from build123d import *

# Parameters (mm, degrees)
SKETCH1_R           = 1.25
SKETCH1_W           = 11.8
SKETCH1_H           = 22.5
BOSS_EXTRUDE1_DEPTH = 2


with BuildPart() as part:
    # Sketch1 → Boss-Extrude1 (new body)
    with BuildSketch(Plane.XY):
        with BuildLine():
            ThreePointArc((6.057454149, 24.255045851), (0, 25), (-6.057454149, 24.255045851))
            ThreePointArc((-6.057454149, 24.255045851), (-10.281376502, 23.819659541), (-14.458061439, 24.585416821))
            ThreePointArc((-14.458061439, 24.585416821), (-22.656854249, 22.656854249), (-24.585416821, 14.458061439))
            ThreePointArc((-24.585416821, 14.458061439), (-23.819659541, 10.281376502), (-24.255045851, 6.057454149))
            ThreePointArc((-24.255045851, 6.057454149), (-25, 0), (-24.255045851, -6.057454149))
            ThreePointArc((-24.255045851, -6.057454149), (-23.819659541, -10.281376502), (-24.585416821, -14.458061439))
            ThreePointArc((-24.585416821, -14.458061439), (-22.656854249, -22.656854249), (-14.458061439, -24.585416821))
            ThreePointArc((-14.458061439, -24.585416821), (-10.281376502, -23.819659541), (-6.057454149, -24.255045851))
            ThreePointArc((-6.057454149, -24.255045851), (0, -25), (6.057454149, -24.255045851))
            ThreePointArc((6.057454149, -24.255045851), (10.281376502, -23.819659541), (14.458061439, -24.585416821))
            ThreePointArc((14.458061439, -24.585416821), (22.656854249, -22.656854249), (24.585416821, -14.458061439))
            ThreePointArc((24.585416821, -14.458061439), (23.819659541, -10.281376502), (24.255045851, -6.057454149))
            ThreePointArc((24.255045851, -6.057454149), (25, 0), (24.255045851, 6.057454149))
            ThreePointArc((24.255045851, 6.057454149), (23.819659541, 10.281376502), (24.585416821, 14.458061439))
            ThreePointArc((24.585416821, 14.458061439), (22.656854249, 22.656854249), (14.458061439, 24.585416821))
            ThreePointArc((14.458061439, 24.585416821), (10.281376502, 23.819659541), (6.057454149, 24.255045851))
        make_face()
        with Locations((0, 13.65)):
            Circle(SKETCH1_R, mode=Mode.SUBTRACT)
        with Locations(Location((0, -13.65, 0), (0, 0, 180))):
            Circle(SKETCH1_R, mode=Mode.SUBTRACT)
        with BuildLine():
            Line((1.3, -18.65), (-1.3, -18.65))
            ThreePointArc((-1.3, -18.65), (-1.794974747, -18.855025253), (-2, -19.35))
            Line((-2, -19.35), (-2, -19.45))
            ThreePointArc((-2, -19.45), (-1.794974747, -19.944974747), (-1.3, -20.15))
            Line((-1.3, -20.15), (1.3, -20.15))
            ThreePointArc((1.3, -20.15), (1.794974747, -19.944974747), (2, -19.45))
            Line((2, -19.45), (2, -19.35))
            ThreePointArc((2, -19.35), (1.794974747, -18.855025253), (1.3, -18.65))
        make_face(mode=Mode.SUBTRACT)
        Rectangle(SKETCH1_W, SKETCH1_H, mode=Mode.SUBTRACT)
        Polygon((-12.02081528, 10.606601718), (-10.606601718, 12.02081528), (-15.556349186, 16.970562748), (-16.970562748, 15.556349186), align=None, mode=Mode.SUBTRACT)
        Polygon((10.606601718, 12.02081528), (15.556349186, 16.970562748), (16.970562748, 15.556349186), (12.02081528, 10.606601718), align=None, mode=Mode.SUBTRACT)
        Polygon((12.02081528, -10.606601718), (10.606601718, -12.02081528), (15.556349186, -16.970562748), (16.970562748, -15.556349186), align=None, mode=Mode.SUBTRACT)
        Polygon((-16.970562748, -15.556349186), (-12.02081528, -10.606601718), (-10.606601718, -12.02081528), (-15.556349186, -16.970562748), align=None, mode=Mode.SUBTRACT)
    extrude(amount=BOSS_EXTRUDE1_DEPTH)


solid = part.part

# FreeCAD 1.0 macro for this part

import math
import FreeCAD as App
import Part
import Sketcher
from FreeCAD import Vector
Q = App.Units.Quantity

doc = App.newDocument("Part")
body = doc.addObject("PartDesign::Body", "Body")

# Sketch on XY plane
sketch1 = body.newObject("Sketcher::SketchObject", "Sketch")
sketch1.AttachmentSupport = (doc.getObject("XY_Plane"), [""])
sketch1.MapMode = "FlatFace"
sketch1.addGeometry(Part.ArcOfCircle(Part.Circle(Vector(0, 0, 0), Vector(0, 0, 1), 25), math.radians(75.97778), math.radians(104.02222)), False)
sketch1.addGeometry(Part.ArcOfCircle(Part.Circle(Vector(-9.691927, 38.808073, 0), Vector(0, 0, 1), 15), math.radians(-108.526445), math.radians(-75.97778)), False)
sketch1.addGeometry(Part.ArcOfCircle(Part.Circle(Vector(-17, 17, 0), Vector(0, 0, 1), 8), math.radians(71.473555), math.radians(198.526445)), False)
sketch1.addGeometry(Part.ArcOfCircle(Part.Circle(Vector(-38.808073, 9.691927, 0), Vector(0, 0, 1), 15), math.radians(-14.02222), math.radians(18.526445)), False)
sketch1.addGeometry(Part.ArcOfCircle(Part.Circle(Vector(0, 0, 0), Vector(0, 0, 1), 25), math.radians(165.97778), math.radians(194.02222)), False)
sketch1.addGeometry(Part.ArcOfCircle(Part.Circle(Vector(-38.808073, -9.691927, 0), Vector(0, 0, 1), 15), math.radians(-18.526445), math.radians(14.02222)), False)
sketch1.addGeometry(Part.ArcOfCircle(Part.Circle(Vector(-17, -17, 0), Vector(0, 0, 1), 8), math.radians(161.473555), math.radians(288.526445)), False)
sketch1.addGeometry(Part.ArcOfCircle(Part.Circle(Vector(-9.691927, -38.808073, 0), Vector(0, 0, 1), 15), math.radians(75.97778), math.radians(108.526445)), False)
sketch1.addGeometry(Part.ArcOfCircle(Part.Circle(Vector(0, 0, 0), Vector(0, 0, 1), 25), math.radians(-104.02222), math.radians(-75.97778)), False)
sketch1.addGeometry(Part.ArcOfCircle(Part.Circle(Vector(9.691927, -38.808073, 0), Vector(0, 0, 1), 15), math.radians(71.473555), math.radians(104.02222)), False)
sketch1.addGeometry(Part.ArcOfCircle(Part.Circle(Vector(17, -17, 0), Vector(0, 0, 1), 8), math.radians(-108.526445), math.radians(18.526445)), False)
sketch1.addGeometry(Part.ArcOfCircle(Part.Circle(Vector(38.808073, -9.691927, 0), Vector(0, 0, 1), 15), math.radians(165.97778), math.radians(198.526445)), False)
sketch1.addGeometry(Part.ArcOfCircle(Part.Circle(Vector(0, 0, 0), Vector(0, 0, 1), 25), math.radians(-14.02222), math.radians(14.02222)), False)
sketch1.addGeometry(Part.ArcOfCircle(Part.Circle(Vector(38.808073, 9.691927, 0), Vector(0, 0, 1), 15), math.radians(161.473555), math.radians(194.02222)), False)
sketch1.addGeometry(Part.ArcOfCircle(Part.Circle(Vector(17, 17, 0), Vector(0, 0, 1), 8), math.radians(-18.526445), math.radians(108.526445)), False)
sketch1.addGeometry(Part.ArcOfCircle(Part.Circle(Vector(9.691927, 38.808073, 0), Vector(0, 0, 1), 15), math.radians(-104.02222), math.radians(-71.473555)), False)
sketch1.addGeometry(Part.LineSegment(Vector(-15.556349, -16.970563, 0), Vector(-16.970563, -15.556349, 0)), False)
sketch1.addGeometry(Part.LineSegment(Vector(-16.970563, -15.556349, 0), Vector(-12.020815, -10.606602, 0)), False)
sketch1.addGeometry(Part.LineSegment(Vector(-12.020815, -10.606602, 0), Vector(-10.606602, -12.020815, 0)), False)
sketch1.addGeometry(Part.LineSegment(Vector(-10.606602, -12.020815, 0), Vector(-15.556349, -16.970563, 0)), False)
sketch1.addGeometry(Part.LineSegment(Vector(-1.3, -18.65, 0), Vector(1.3, -18.65, 0)), False)
sketch1.addGeometry(Part.ArcOfCircle(Part.Circle(Vector(1.3, -19.35, 0), Vector(0, 0, 1), 0.7), math.radians(0), math.radians(90)), False)
sketch1.addGeometry(Part.LineSegment(Vector(2, -19.35, 0), Vector(2, -19.45, 0)), False)
sketch1.addGeometry(Part.ArcOfCircle(Part.Circle(Vector(1.3, -19.45, 0), Vector(0, 0, 1), 0.7), math.radians(-90), math.radians(0)), False)
sketch1.addGeometry(Part.LineSegment(Vector(1.3, -20.15, 0), Vector(-1.3, -20.15, 0)), False)
sketch1.addGeometry(Part.ArcOfCircle(Part.Circle(Vector(-1.3, -19.45, 0), Vector(0, 0, 1), 0.7), math.radians(180), math.radians(270)), False)
sketch1.addGeometry(Part.LineSegment(Vector(-2, -19.45, 0), Vector(-2, -19.35, 0)), False)
sketch1.addGeometry(Part.ArcOfCircle(Part.Circle(Vector(-1.3, -19.35, 0), Vector(0, 0, 1), 0.7), math.radians(90), math.radians(180)), False)
sketch1.addGeometry(Part.Circle(Vector(0, -13.65, 0), Vector(0, 0, 1), 1.25), False)
sketch1.addGeometry(Part.LineSegment(Vector(10.606602, -12.020815, 0), Vector(12.020815, -10.606602, 0)), False)
sketch1.addGeometry(Part.LineSegment(Vector(12.020815, -10.606602, 0), Vector(16.970563, -15.556349, 0)), False)
sketch1.addGeometry(Part.LineSegment(Vector(16.970563, -15.556349, 0), Vector(15.556349, -16.970563, 0)), False)
sketch1.addGeometry(Part.LineSegment(Vector(15.556349, -16.970563, 0), Vector(10.606602, -12.020815, 0)), False)
sketch1.addGeometry(Part.LineSegment(Vector(-10.606602, 12.020815, 0), Vector(-12.020815, 10.606602, 0)), False)
sketch1.addGeometry(Part.LineSegment(Vector(-12.020815, 10.606602, 0), Vector(-16.970563, 15.556349, 0)), False)
sketch1.addGeometry(Part.LineSegment(Vector(-16.970563, 15.556349, 0), Vector(-15.556349, 16.970563, 0)), False)
sketch1.addGeometry(Part.LineSegment(Vector(-15.556349, 16.970563, 0), Vector(-10.606602, 12.020815, 0)), False)
sketch1.addGeometry(Part.LineSegment(Vector(5.9, -11.25, 0), Vector(-5.9, -11.25, 0)), False)
sketch1.addGeometry(Part.LineSegment(Vector(-5.9, -11.25, 0), Vector(-5.9, 11.25, 0)), False)
sketch1.addGeometry(Part.LineSegment(Vector(-5.9, 11.25, 0), Vector(5.9, 11.25, 0)), False)
sketch1.addGeometry(Part.LineSegment(Vector(5.9, 11.25, 0), Vector(5.9, -11.25, 0)), False)
sketch1.addGeometry(Part.Circle(Vector(0, 13.65, 0), Vector(0, 0, 1), 1.25), False)
sketch1.addGeometry(Part.LineSegment(Vector(12.020815, 10.606602, 0), Vector(10.606602, 12.020815, 0)), False)
sketch1.addGeometry(Part.LineSegment(Vector(10.606602, 12.020815, 0), Vector(15.556349, 16.970563, 0)), False)
sketch1.addGeometry(Part.LineSegment(Vector(15.556349, 16.970563, 0), Vector(16.970563, 15.556349, 0)), False)
sketch1.addGeometry(Part.LineSegment(Vector(16.970563, 15.556349, 0), Vector(12.020815, 10.606602, 0)), False)
sketch1.addConstraint(Sketcher.Constraint("Tangent", 0, 2, 1, 2))
sketch1.addConstraint(Sketcher.Constraint("Tangent", 1, 1, 2, 1))
sketch1.addConstraint(Sketcher.Constraint("Tangent", 2, 2, 3, 2))
sketch1.addConstraint(Sketcher.Constraint("Tangent", 3, 1, 4, 1))
sketch1.addConstraint(Sketcher.Constraint("Tangent", 4, 2, 5, 2))
sketch1.addConstraint(Sketcher.Constraint("Tangent", 5, 1, 6, 1))
sketch1.addConstraint(Sketcher.Constraint("Tangent", 6, 2, 7, 2))
sketch1.addConstraint(Sketcher.Constraint("Tangent", 7, 1, 8, 1))
sketch1.addConstraint(Sketcher.Constraint("Tangent", 8, 2, 9, 2))
sketch1.addConstraint(Sketcher.Constraint("Tangent", 9, 1, 10, 1))
sketch1.addConstraint(Sketcher.Constraint("Tangent", 10, 2, 11, 2))
sketch1.addConstraint(Sketcher.Constraint("Tangent", 11, 1, 12, 1))
sketch1.addConstraint(Sketcher.Constraint("Tangent", 12, 2, 13, 2))
sketch1.addConstraint(Sketcher.Constraint("Tangent", 13, 1, 14, 1))
sketch1.addConstraint(Sketcher.Constraint("Tangent", 14, 2, 15, 2))
sketch1.addConstraint(Sketcher.Constraint("Tangent", 15, 1, 0, 1))
sketch1.addConstraint(Sketcher.Constraint("Coincident", 16, 2, 17, 1))
sketch1.addConstraint(Sketcher.Constraint("Coincident", 17, 2, 18, 1))
sketch1.addConstraint(Sketcher.Constraint("Coincident", 18, 2, 19, 1))
sketch1.addConstraint(Sketcher.Constraint("Coincident", 19, 2, 16, 1))
sketch1.addConstraint(Sketcher.Constraint("Tangent", 20, 2, 21, 2))
sketch1.addConstraint(Sketcher.Constraint("Tangent", 21, 1, 22, 1))
sketch1.addConstraint(Sketcher.Constraint("Tangent", 22, 2, 23, 2))
sketch1.addConstraint(Sketcher.Constraint("Tangent", 23, 1, 24, 1))
sketch1.addConstraint(Sketcher.Constraint("Tangent", 24, 2, 25, 2))
sketch1.addConstraint(Sketcher.Constraint("Tangent", 25, 1, 26, 1))
sketch1.addConstraint(Sketcher.Constraint("Tangent", 26, 2, 27, 2))
sketch1.addConstraint(Sketcher.Constraint("Tangent", 27, 1, 20, 1))
sketch1.addConstraint(Sketcher.Constraint("Coincident", 29, 2, 30, 1))
sketch1.addConstraint(Sketcher.Constraint("Coincident", 30, 2, 31, 1))
sketch1.addConstraint(Sketcher.Constraint("Coincident", 31, 2, 32, 1))
sketch1.addConstraint(Sketcher.Constraint("Coincident", 32, 2, 29, 1))
sketch1.addConstraint(Sketcher.Constraint("Coincident", 33, 2, 34, 1))
sketch1.addConstraint(Sketcher.Constraint("Coincident", 34, 2, 35, 1))
sketch1.addConstraint(Sketcher.Constraint("Coincident", 35, 2, 36, 1))
sketch1.addConstraint(Sketcher.Constraint("Coincident", 36, 2, 33, 1))
sketch1.addConstraint(Sketcher.Constraint("Coincident", 37, 2, 38, 1))
sketch1.addConstraint(Sketcher.Constraint("Coincident", 38, 2, 39, 1))
sketch1.addConstraint(Sketcher.Constraint("Coincident", 39, 2, 40, 1))
sketch1.addConstraint(Sketcher.Constraint("Coincident", 40, 2, 37, 1))
sketch1.addConstraint(Sketcher.Constraint("Coincident", 42, 2, 43, 1))
sketch1.addConstraint(Sketcher.Constraint("Coincident", 43, 2, 44, 1))
sketch1.addConstraint(Sketcher.Constraint("Coincident", 44, 2, 45, 1))
sketch1.addConstraint(Sketcher.Constraint("Coincident", 45, 2, 42, 1))
sketch1.addConstraint(Sketcher.Constraint("Horizontal", 20))
sketch1.addConstraint(Sketcher.Constraint("Vertical", 22))
sketch1.addConstraint(Sketcher.Constraint("Horizontal", 24))
sketch1.addConstraint(Sketcher.Constraint("Vertical", 26))
sketch1.addConstraint(Sketcher.Constraint("Horizontal", 37))
sketch1.addConstraint(Sketcher.Constraint("Vertical", 38))
sketch1.addConstraint(Sketcher.Constraint("Horizontal", 39))
sketch1.addConstraint(Sketcher.Constraint("Vertical", 40))
sketch1.addConstraint(Sketcher.Constraint("Coincident", 0, 3, -1, 1))
sketch1.addConstraint(Sketcher.Constraint("Coincident", 4, 3, -1, 1))
sketch1.addConstraint(Sketcher.Constraint("Coincident", 8, 3, -1, 1))
sketch1.addConstraint(Sketcher.Constraint("Coincident", 12, 3, -1, 1))
sketch1.addConstraint(Sketcher.Constraint("Equal", 1, 3))
sketch1.addConstraint(Sketcher.Constraint("Equal", 0, 4))
sketch1.addConstraint(Sketcher.Constraint("Equal", 3, 5))
sketch1.addConstraint(Sketcher.Constraint("Equal", 2, 6))
sketch1.addConstraint(Sketcher.Constraint("Equal", 5, 7))
sketch1.addConstraint(Sketcher.Constraint("Equal", 4, 8))
sketch1.addConstraint(Sketcher.Constraint("Equal", 7, 9))
sketch1.addConstraint(Sketcher.Constraint("Equal", 6, 10))
sketch1.addConstraint(Sketcher.Constraint("Equal", 9, 11))
sketch1.addConstraint(Sketcher.Constraint("Equal", 8, 12))
sketch1.addConstraint(Sketcher.Constraint("Equal", 11, 13))
sketch1.addConstraint(Sketcher.Constraint("Equal", 10, 14))
sketch1.addConstraint(Sketcher.Constraint("Equal", 13, 15))
sketch1.addConstraint(Sketcher.Constraint("Equal", 21, 23))
sketch1.addConstraint(Sketcher.Constraint("Equal", 23, 25))
sketch1.addConstraint(Sketcher.Constraint("Equal", 25, 27))
sketch1.addConstraint(Sketcher.Constraint("Equal", 28, 41))
sketch1.addConstraint(Sketcher.Constraint("Symmetric", 2, 3, 10, 3, -1, 1))
sketch1.addConstraint(Sketcher.Constraint("Symmetric", 6, 3, 14, 3, -1, 1))
sketch1.addConstraint(Sketcher.Constraint("Symmetric", 28, 3, 41, 3, -1, 1))
sketch1.addConstraint(Sketcher.Constraint("Symmetric", 29, 2, 33, 2, -1, 1))
sketch1.addConstraint(Sketcher.Constraint("Symmetric", 30, 2, 34, 2, -1, 1))
sketch1.addConstraint(Sketcher.Constraint("Symmetric", 31, 2, 35, 2, -1, 1))
sketch1.addConstraint(Sketcher.Constraint("Symmetric", 32, 2, 36, 2, -1, 1))
sketch1.addConstraint(Sketcher.Constraint("Symmetric", 37, 2, 39, 2, -1, 1))
sketch1.addConstraint(Sketcher.Constraint("Symmetric", 18, 2, 42, 2, -1, 1))
sketch1.addConstraint(Sketcher.Constraint("Symmetric", 19, 2, 43, 2, -1, 1))
sketch1.addConstraint(Sketcher.Constraint("Symmetric", 16, 2, 44, 2, -1, 1))
sketch1.addConstraint(Sketcher.Constraint("Symmetric", 17, 2, 45, 2, -1, 1))
sketch1.addConstraint(Sketcher.Constraint("Symmetric", 6, 3, 10, 3, -2))
sketch1.addConstraint(Sketcher.Constraint("Symmetric", 17, 2, 29, 2, -2))
sketch1.addConstraint(Sketcher.Constraint("Symmetric", 16, 2, 30, 2, -2))
sketch1.addConstraint(Sketcher.Constraint("Symmetric", 19, 2, 31, 2, -2))
sketch1.addConstraint(Sketcher.Constraint("Symmetric", 18, 2, 32, 2, -2))
sketch1.addConstraint(Sketcher.Constraint("PointOnObject", 28, 3, -2))
sketch1.addConstraint(Sketcher.Constraint("Perpendicular", 16, 17))
sketch1.addConstraint(Sketcher.Constraint("Perpendicular", 17, 18))
sketch1.addConstraint(Sketcher.Constraint("Perpendicular", 18, 19))
sketch1.addConstraint(Sketcher.Constraint("Parallel", 19, 29))
sketch1.addConstraint(Sketcher.Constraint("Radius", 0, Q("25 mm")))
sketch1.addConstraint(Sketcher.Constraint("Radius", 1, Q("15 mm")))
sketch1.addConstraint(Sketcher.Constraint("Radius", 2, Q("8 mm")))
sketch1.addConstraint(Sketcher.Constraint("Diameter", 28, Q("2.5 mm")))
sketch1.addConstraint(Sketcher.Constraint("Radius", 21, Q("0.7 mm")))
sketch1.addConstraint(Sketcher.Constraint("Distance", 16, Q("2 mm")))
sketch1.addConstraint(Sketcher.Constraint("Distance", 17, Q("7 mm")))
sketch1.addConstraint(Sketcher.Constraint("DistanceX", 20, 1, 20, 2, Q("2.6 mm")))
sketch1.addConstraint(Sketcher.Constraint("DistanceX", 37, 2, 37, 1, Q("11.8 mm")))
sketch1.addConstraint(Sketcher.Constraint("DistanceY", 22, 2, 22, 1, Q("0.1 mm")))
sketch1.addConstraint(Sketcher.Constraint("DistanceY", 38, 1, 38, 2, Q("22.5 mm")))
sketch1.addConstraint(Sketcher.Constraint("DistanceX", 2, 3, -1, 1, Q("17 mm")))
sketch1.addConstraint(Sketcher.Constraint("DistanceY", -1, 1, 2, 3, Q("17 mm")))
sketch1.addConstraint(Sketcher.Constraint("DistanceX", -1, 1, 21, 1, Q("2 mm")))
sketch1.addConstraint(Sketcher.Constraint("DistanceY", 21, 3, -1, 1, Q("19.35 mm")))
sketch1.addConstraint(Sketcher.Constraint("DistanceY", 28, 3, -1, 1, Q("13.65 mm")))
sketch1.addConstraint(Sketcher.Constraint("DistanceY", 17, 2, -1, 1, Q("10.606602 mm")))
sketch1.addConstraint(Sketcher.Constraint("DistanceX", 18, 2, -1, 1, Q("10.606602 mm")))
pad1 = body.newObject("PartDesign::Pad", "Pad")
pad1.Profile = sketch1
pad1.Length = 2

doc.recompute()
